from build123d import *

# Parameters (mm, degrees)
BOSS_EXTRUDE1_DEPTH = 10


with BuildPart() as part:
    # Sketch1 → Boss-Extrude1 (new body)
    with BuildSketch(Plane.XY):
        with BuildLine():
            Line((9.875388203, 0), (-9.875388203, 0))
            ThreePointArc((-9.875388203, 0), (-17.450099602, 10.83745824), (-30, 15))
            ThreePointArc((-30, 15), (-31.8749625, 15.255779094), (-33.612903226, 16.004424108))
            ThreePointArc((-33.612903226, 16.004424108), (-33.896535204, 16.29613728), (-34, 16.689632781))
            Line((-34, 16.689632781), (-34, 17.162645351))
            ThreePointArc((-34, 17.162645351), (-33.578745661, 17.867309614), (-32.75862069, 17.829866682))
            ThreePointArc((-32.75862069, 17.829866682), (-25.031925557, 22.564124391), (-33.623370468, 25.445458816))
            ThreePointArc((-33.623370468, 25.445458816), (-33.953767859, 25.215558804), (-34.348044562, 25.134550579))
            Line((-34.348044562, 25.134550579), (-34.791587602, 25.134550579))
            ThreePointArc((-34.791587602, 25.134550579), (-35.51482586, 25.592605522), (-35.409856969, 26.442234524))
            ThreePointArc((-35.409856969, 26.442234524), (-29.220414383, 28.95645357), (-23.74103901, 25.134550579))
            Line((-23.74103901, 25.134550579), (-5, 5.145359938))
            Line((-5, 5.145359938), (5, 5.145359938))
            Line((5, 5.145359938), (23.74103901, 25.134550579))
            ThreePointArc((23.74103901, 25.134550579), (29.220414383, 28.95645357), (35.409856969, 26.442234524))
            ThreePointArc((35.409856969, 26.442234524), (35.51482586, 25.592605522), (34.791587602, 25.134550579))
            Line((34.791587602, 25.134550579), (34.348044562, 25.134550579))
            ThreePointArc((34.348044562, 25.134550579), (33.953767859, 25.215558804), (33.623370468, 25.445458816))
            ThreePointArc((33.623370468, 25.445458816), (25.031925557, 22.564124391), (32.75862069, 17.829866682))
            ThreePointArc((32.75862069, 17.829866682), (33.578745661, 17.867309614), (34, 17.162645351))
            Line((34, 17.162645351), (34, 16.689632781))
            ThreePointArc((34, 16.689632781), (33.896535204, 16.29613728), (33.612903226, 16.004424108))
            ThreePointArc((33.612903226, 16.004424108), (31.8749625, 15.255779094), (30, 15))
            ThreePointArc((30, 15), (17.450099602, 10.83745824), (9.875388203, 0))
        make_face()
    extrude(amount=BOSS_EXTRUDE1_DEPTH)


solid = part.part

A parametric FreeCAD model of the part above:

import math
import FreeCAD as App
import Part
import Sketcher
from FreeCAD import Vector

doc = App.newDocument("Part")
body = doc.addObject("PartDesign::Body", "Body")

# Sketch on XY plane
sketch1 = doc.addObject("Sketcher::SketchObject", "Sketch")
body.addObject(sketch1)
sketch1.AttachmentSupport = (doc.XY_Plane, [""])
sketch1.MapMode = "FlatFace"
sketch1.addGeometry([
    Part.LineSegment(Vector(-9.88, 0, 0), Vector(9.88, 0, 0)),  # 0
    Part.ArcOfCircle(Part.Circle(Vector(30, -6, 0), Vector(0, 0, 1), 21), math.radians(90), math.radians(163)),  # 1
    Part.ArcOfCircle(Part.Circle(Vector(30, 22, 0), Vector(0, 0, 1), 7), math.radians(-90), math.radians(-59)),  # 2
    Part.ArcOfCircle(Part.Circle(Vector(33.2, 16.69, 0), Vector(0, 0, 1), 0.8), math.radians(-59), math.radians(0)),  # 3
    Part.LineSegment(Vector(34, 16.69, 0), Vector(34, 17.16, 0)),  # 4
    Part.ArcOfCircle(Part.Circle(Vector(33.2, 17.16, 0), Vector(0, 0, 1), 0.8), math.radians(0), math.radians(123)),  # 5
    Part.ArcOfCircle(Part.Circle(Vector(30, 22, 0), Vector(0, 0, 1), 5), math.radians(44), math.radians(303)),  # 6
    Part.ArcOfCircle(Part.Circle(Vector(34.35, 26.13, 0), Vector(0, 0, 1), 1), math.radians(-136), math.radians(-90)),  # 7
    Part.LineSegment(Vector(34.35, 25.13, 0), Vector(34.79, 25.13, 0)),  # 8
    Part.ArcOfCircle(Part.Circle(Vector(34.79, 25.93, 0), Vector(0, 0, 1), 0.8), math.radians(-90), math.radians(39)),  # 9
    Part.ArcOfCircle(Part.Circle(Vector(30, 22, 0), Vector(0, 0, 1), 7), math.radians(39), math.radians(153)),  # 10
    Part.LineSegment(Vector(23.74, 25.13, 0), Vector(5, 5.15, 0)),  # 11
    Part.LineSegment(Vector(5, 5.15, 0), Vector(-5, 5.15, 0)),  # 12
    Part.LineSegment(Vector(-5, 5.15, 0), Vector(-23.74, 25.13, 0)),  # 13
    Part.ArcOfCircle(Part.Circle(Vector(-30, 22, 0), Vector(0, 0, 1), 7), math.radians(27), math.radians(141)),  # 14
    Part.ArcOfCircle(Part.Circle(Vector(-34.79, 25.93, 0), Vector(0, 0, 1), 0.8), math.radians(141), math.radians(270)),  # 15
    Part.LineSegment(Vector(-34.79, 25.13, 0), Vector(-34.35, 25.13, 0)),  # 16
    Part.ArcOfCircle(Part.Circle(Vector(-34.35, 26.13, 0), Vector(0, 0, 1), 1), math.radians(-90), math.radians(-44)),  # 17
    Part.ArcOfCircle(Part.Circle(Vector(-30, 22, 0), Vector(0, 0, 1), 5), math.radians(-123), math.radians(136)),  # 18
    Part.ArcOfCircle(Part.Circle(Vector(-33.2, 17.16, 0), Vector(0, 0, 1), 0.8), math.radians(57), math.radians(180)),  # 19
    Part.LineSegment(Vector(-34, 17.16, 0), Vector(-34, 16.69, 0)),  # 20
    Part.ArcOfCircle(Part.Circle(Vector(-33.2, 16.69, 0), Vector(0, 0, 1), 0.8), math.radians(180), math.radians(239)),  # 21
    Part.ArcOfCircle(Part.Circle(Vector(-30, 22, 0), Vector(0, 0, 1), 7), math.radians(-121), math.radians(-90)),  # 22
    Part.ArcOfCircle(Part.Circle(Vector(-30, -6, 0), Vector(0, 0, 1), 21), math.radians(17), math.radians(90)),  # 23
], False)
sketch1.addConstraint([
    Sketcher.Constraint("Coincident", 0, 2, 1, 2),
    Sketcher.Constraint("Tangent", 1, 1, 2, 1),
    Sketcher.Constraint("Tangent", 2, 2, 3, 1),
    Sketcher.Constraint("Tangent", 3, 2, 4, 1),
    Sketcher.Constraint("Tangent", 4, 2, 5, 1),
    Sketcher.Constraint("Tangent", 5, 2, 6, 2),
    Sketcher.Constraint("Tangent", 6, 1, 7, 1),
    Sketcher.Constraint("Tangent", 7, 2, 8, 1),
    Sketcher.Constraint("Tangent", 8, 2, 9, 1),
    Sketcher.Constraint("Tangent", 9, 2, 10, 1),
    Sketcher.Constraint("Coincident", 10, 2, 11, 1),
    Sketcher.Constraint("Coincident", 11, 2, 12, 1),
    Sketcher.Constraint("Coincident", 12, 2, 13, 1),
    Sketcher.Constraint("Coincident", 13, 2, 14, 1),
    Sketcher.Constraint("Tangent", 14, 2, 15, 1),
    Sketcher.Constraint("Tangent", 15, 2, 16, 1),
    Sketcher.Constraint("Tangent", 16, 2, 17, 1),
    Sketcher.Constraint("Tangent", 17, 2, 18, 2),
    Sketcher.Constraint("Tangent", 18, 1, 19, 1),
    Sketcher.Constraint("Tangent", 19, 2, 20, 1),
    Sketcher.Constraint("Tangent", 20, 2, 21, 1),
    Sketcher.Constraint("Tangent", 21, 2, 22, 1),
    Sketcher.Constraint("Tangent", 22, 2, 23, 2),
    Sketcher.Constraint("Coincident", 23, 1, 0, 1),
    Sketcher.Constraint("Horizontal", 0),
    Sketcher.Constraint("Vertical", 4),
    Sketcher.Constraint("Horizontal", 8),
    Sketcher.Constraint("Horizontal", 12),
    Sketcher.Constraint("Horizontal", 16),
    Sketcher.Constraint("Vertical", 20),
    Sketcher.Constraint("Coincident", 6, 3, 2, 3),
    Sketcher.Constraint("Coincident", 10, 3, 2, 3),
    Sketcher.Constraint("Coincident", 18, 3, 14, 3),
    Sketcher.Constraint("Coincident", 22, 3, 14, 3),
    Sketcher.Constraint("Equal", 3, 5),
    Sketcher.Constraint("Equal", 5, 9),
    Sketcher.Constraint("Equal", 2, 10),
    Sketcher.Constraint("Equal", 10, 14),
    Sketcher.Constraint("Equal", 9, 15),
    Sketcher.Constraint("Equal", 7, 17),
    Sketcher.Constraint("Equal", 6, 18),
    Sketcher.Constraint("Equal", 15, 19),
    Sketcher.Constraint("Equal", 19, 21),
    Sketcher.Constraint("Equal", 14, 22),
    Sketcher.Constraint("Equal", 1, 23),
    Sketcher.Constraint("Symmetric", 0, 2, 23, 1, -1, 1),
    Sketcher.Constraint("Symmetric", 2, 3, 14, 3, -2),
    Sketcher.Constraint("Horizontal", 9, 3, 15, 3),
    Sketcher.Constraint("Horizontal", 5, 3, 19, 3),
    Sketcher.Constraint("Horizontal", 8, 2, 10, 2),
    Sketcher.Constraint("Horizontal", 10, 2, 13, 2),
    Sketcher.Constraint("Vertical", 1, 3, 2, 3),
    Sketcher.Constraint("Equal", 11, 13),
    Sketcher.Constraint("Radius", 1, 21.0),
    Sketcher.Constraint("Radius", 2, 7.0),
    Sketcher.Constraint("Radius", 6, 5.0),
    Sketcher.Constraint("Radius", 7, 1.0),
    Sketcher.Constraint("Radius", 3, 0.8),
    Sketcher.Constraint("DistanceX", 12, 2, 12, 1, 10.0),
    Sketcher.Constraint("DistanceX", -1, 1, 1, 3, 30.0),
    Sketcher.Constraint("DistanceY", 1, 3, -1, 1, 6.0),
    Sketcher.Constraint("DistanceX", -1, 1, 3, 2, 34.0),
    Sketcher.Constraint("DistanceX", 8, 1, 8, 2, 0.443543),
    Sketcher.Constraint("DistanceY", -1, 1, 11, 2, 5.14536),
])
pad1 = doc.addObject("PartDesign::Pad", "Pad")
body.addObject(pad1)
pad1.Profile = sketch1
pad1.Length = 10

doc.recompute()
